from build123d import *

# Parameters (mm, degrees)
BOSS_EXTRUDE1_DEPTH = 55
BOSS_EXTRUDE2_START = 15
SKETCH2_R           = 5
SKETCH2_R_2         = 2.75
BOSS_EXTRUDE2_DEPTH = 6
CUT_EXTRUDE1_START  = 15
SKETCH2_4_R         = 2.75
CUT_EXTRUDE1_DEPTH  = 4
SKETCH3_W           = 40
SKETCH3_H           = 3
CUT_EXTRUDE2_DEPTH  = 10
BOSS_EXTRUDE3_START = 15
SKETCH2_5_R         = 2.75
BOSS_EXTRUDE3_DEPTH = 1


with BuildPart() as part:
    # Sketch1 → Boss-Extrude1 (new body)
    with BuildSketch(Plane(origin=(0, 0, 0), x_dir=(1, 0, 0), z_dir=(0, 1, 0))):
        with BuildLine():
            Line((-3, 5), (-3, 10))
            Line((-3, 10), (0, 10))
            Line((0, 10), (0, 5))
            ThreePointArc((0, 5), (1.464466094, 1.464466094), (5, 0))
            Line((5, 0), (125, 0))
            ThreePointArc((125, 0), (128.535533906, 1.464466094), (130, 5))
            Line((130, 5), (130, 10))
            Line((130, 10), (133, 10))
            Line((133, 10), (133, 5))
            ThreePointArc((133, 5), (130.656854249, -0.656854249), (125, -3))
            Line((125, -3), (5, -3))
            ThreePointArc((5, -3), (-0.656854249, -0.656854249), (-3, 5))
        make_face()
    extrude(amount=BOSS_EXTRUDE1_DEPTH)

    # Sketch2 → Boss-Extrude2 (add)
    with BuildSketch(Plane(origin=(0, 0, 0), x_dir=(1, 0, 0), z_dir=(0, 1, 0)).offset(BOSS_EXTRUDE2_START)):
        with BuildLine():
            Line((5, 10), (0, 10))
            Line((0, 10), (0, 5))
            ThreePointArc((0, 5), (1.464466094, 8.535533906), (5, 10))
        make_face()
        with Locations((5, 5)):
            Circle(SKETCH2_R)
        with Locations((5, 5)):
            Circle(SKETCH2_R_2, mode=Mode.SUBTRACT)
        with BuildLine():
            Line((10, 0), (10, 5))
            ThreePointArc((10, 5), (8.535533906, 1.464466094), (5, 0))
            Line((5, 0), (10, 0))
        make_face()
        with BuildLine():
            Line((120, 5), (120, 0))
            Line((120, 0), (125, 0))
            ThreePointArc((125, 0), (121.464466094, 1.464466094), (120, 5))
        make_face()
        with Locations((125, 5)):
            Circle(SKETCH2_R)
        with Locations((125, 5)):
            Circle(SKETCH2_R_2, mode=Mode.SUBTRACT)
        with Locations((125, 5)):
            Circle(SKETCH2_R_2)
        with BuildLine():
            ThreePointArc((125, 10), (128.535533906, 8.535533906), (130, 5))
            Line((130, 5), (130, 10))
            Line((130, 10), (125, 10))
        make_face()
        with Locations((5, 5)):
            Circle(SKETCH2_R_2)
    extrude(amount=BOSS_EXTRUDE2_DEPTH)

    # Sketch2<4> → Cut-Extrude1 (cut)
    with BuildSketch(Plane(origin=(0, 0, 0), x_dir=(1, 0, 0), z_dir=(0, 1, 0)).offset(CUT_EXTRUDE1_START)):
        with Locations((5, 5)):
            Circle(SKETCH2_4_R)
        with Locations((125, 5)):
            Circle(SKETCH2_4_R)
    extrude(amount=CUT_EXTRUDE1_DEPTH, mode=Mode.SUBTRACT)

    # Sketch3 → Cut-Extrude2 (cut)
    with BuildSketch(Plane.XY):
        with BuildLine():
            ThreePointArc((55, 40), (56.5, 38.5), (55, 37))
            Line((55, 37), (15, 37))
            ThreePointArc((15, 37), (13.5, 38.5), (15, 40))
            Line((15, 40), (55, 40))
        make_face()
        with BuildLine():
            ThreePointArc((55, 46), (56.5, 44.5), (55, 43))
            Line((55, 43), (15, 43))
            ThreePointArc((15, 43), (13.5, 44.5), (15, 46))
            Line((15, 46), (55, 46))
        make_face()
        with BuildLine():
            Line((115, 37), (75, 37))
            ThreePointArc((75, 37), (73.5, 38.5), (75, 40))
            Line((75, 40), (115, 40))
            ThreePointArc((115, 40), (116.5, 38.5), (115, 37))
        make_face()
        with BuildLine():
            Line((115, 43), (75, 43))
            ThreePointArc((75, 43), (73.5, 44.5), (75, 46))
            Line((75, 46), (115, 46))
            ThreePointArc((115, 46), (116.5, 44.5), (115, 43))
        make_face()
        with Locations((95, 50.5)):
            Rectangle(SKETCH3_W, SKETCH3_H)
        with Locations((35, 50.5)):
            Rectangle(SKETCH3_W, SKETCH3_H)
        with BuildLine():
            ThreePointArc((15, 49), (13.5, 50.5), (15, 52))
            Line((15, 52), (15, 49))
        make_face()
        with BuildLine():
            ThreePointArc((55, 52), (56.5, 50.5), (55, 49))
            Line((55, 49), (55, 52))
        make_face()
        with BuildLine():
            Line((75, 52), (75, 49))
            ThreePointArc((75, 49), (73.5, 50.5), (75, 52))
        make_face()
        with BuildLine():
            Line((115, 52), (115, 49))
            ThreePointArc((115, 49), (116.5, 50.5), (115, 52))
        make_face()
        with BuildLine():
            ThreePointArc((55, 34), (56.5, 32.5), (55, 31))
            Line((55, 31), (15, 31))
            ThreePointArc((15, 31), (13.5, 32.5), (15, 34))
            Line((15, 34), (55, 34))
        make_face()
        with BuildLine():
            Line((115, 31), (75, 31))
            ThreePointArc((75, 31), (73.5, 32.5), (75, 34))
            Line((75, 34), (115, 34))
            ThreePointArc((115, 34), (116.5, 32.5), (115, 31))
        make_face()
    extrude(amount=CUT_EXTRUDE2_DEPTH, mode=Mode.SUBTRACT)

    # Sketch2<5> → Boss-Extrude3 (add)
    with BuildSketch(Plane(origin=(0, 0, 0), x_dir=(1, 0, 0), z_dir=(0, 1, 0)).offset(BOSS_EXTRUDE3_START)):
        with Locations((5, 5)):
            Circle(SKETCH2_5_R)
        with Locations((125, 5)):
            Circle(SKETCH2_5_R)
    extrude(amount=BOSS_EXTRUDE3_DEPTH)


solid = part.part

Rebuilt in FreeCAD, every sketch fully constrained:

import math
import FreeCAD as App
import Part
import Sketcher

V = App.Vector
Q = App.Units.Quantity

doc = App.newDocument("Part")
body = doc.addObject("PartDesign::Body", "Body")

# Sketch on XZ plane
sketch1 = doc.addObject("Sketcher::SketchObject", "Sketch")
body.addObject(sketch1)
sketch1.AttachmentSupport = (doc.XZ_Plane, [""])
sketch1.MapMode = "FlatFace"
sketch1.addGeometry(Part.LineSegment(V(-3, -10, 0), V(-3, -5, 0)), False)
sketch1.addGeometry(Part.ArcOfCircle(Part.Circle(V(5, -5, 0), V(0, 0, 1), 8), math.radians(90), math.radians(180)), False)
sketch1.addGeometry(Part.LineSegment(V(5, 3, 0), V(125, 3, 0)), False)
sketch1.addGeometry(Part.ArcOfCircle(Part.Circle(V(125, -5, 0), V(0, 0, 1), 8), math.radians(0), math.radians(90)), False)
sketch1.addGeometry(Part.LineSegment(V(133, -5, 0), V(133, -10, 0)), False)
sketch1.addGeometry(Part.LineSegment(V(133, -10, 0), V(130, -10, 0)), False)
sketch1.addGeometry(Part.LineSegment(V(130, -10, 0), V(130, -5, 0)), False)
sketch1.addGeometry(Part.ArcOfCircle(Part.Circle(V(125, -5, 0), V(0, 0, 1), 5), math.radians(0), math.radians(90)), False)
sketch1.addGeometry(Part.LineSegment(V(125, 0, 0), V(5, 0, 0)), False)
sketch1.addGeometry(Part.ArcOfCircle(Part.Circle(V(5, -5, 0), V(0, 0, 1), 5), math.radians(90), math.radians(180)), False)
sketch1.addGeometry(Part.LineSegment(V(0, -5, 0), V(0, -10, 0)), False)
sketch1.addGeometry(Part.LineSegment(V(0, -10, 0), V(-3, -10, 0)), False)
sketch1.addConstraint(Sketcher.Constraint("Tangent", 0, 2, 1, 2))
sketch1.addConstraint(Sketcher.Constraint("Tangent", 1, 1, 2, 1))
sketch1.addConstraint(Sketcher.Constraint("Tangent", 2, 2, 3, 2))
sketch1.addConstraint(Sketcher.Constraint("Tangent", 3, 1, 4, 1))
sketch1.addConstraint(Sketcher.Constraint("Coincident", 4, 2, 5, 1))
sketch1.addConstraint(Sketcher.Constraint("Coincident", 5, 2, 6, 1))
sketch1.addConstraint(Sketcher.Constraint("Tangent", 6, 2, 7, 1))
sketch1.addConstraint(Sketcher.Constraint("Tangent", 7, 2, 8, 1))
sketch1.addConstraint(Sketcher.Constraint("Tangent", 8, 2, 9, 1))
sketch1.addConstraint(Sketcher.Constraint("Tangent", 9, 2, 10, 1))
sketch1.addConstraint(Sketcher.Constraint("Coincident", 10, 2, 11, 1))
sketch1.addConstraint(Sketcher.Constraint("Coincident", 11, 2, 0, 1))
sketch1.addConstraint(Sketcher.Constraint("Vertical", 0))
sketch1.addConstraint(Sketcher.Constraint("Horizontal", 2))
sketch1.addConstraint(Sketcher.Constraint("Vertical", 4))
sketch1.addConstraint(Sketcher.Constraint("Horizontal", 5))
sketch1.addConstraint(Sketcher.Constraint("Vertical", 6))
sketch1.addConstraint(Sketcher.Constraint("Horizontal", 8))
sketch1.addConstraint(Sketcher.Constraint("Vertical", 10))
sketch1.addConstraint(Sketcher.Constraint("Horizontal", 11))
sketch1.addConstraint(Sketcher.Constraint("Coincident", 7, 3, 3, 3))
sketch1.addConstraint(Sketcher.Constraint("Coincident", 9, 3, 1, 3))
sketch1.addConstraint(Sketcher.Constraint("Equal", 1, 3))
sketch1.addConstraint(Sketcher.Constraint("PointOnObject", 7, 2, -1))
sketch1.addConstraint(Sketcher.Constraint("PointOnObject", 9, 2, -2))
sketch1.addConstraint(Sketcher.Constraint("Horizontal", 5, 2, 10, 2))
sketch1.addConstraint(Sketcher.Constraint("Radius", 1, Q("8 mm")))
sketch1.addConstraint(Sketcher.Constraint("Radius", 7, Q("5 mm")))
sketch1.addConstraint(Sketcher.Constraint("DistanceX", 2, 1, 2, 2, Q("120 mm")))
sketch1.addConstraint(Sketcher.Constraint("DistanceY", 0, 1, 0, 2, Q("5 mm")))
pad1 = doc.addObject("PartDesign::Pad", "Pad")
body.addObject(pad1)
pad1.Profile = sketch1
pad1.Length = 55
pad1.Reversed = True

# Sketch on XZ plane
sketch2 = doc.addObject("Sketcher::SketchObject", "Sketch001")
body.addObject(sketch2)
sketch2.AttachmentSupport = (doc.XZ_Plane, [""])
sketch2.MapMode = "FlatFace"
sketch2.AttachmentOffset = App.Placement(V(0, 0, -15), App.Rotation())
sketch2.addGeometry(Part.LineSegment(V(5, -10, 0), V(0, -10, 0)), False)
sketch2.addGeometry(Part.LineSegment(V(0, -10, 0), V(0, -5, 0)), False)
sketch2.addGeometry(Part.ArcOfCircle(Part.Circle(V(5, -5, 0), V(0, 0, 1), 5), math.radians(90), math.radians(180)), False)
sketch2.addGeometry(Part.LineSegment(V(5, 0, 0), V(10, 0, 0)), False)
sketch2.addGeometry(Part.LineSegment(V(10, 0, 0), V(10, -5, 0)), False)
sketch2.addGeometry(Part.ArcOfCircle(Part.Circle(V(5, -5, 0), V(0, 0, 1), 5), math.radians(-90), math.radians(0)), False)
sketch2.addGeometry(Part.LineSegment(V(120, -5, 0), V(120, 0, 0)), False)
sketch2.addGeometry(Part.LineSegment(V(120, 0, 0), V(125, 0, 0)), False)
sketch2.addGeometry(Part.ArcOfCircle(Part.Circle(V(125, -5, 0), V(0, 0, 1), 5), math.radians(0), math.radians(90)), False)
sketch2.addGeometry(Part.LineSegment(V(130, -5, 0), V(130, -10, 0)), False)
sketch2.addGeometry(Part.LineSegment(V(130, -10, 0), V(125, -10, 0)), False)
sketch2.addGeometry(Part.ArcOfCircle(Part.Circle(V(125, -5, 0), V(0, 0, 1), 5), math.radians(180), math.radians(270)), False)
sketch2.addConstraint(Sketcher.Constraint("Coincident", 0, 2, 1, 1))
sketch2.addConstraint(Sketcher.Constraint("Tangent", 1, 2, 2, 2))
sketch2.addConstraint(Sketcher.Constraint("Tangent", 2, 1, 3, 1))
sketch2.addConstraint(Sketcher.Constraint("Coincident", 3, 2, 4, 1))
sketch2.addConstraint(Sketcher.Constraint("Tangent", 4, 2, 5, 2))
sketch2.addConstraint(Sketcher.Constraint("Tangent", 5, 1, 0, 1))
sketch2.addConstraint(Sketcher.Constraint("Coincident", 6, 2, 7, 1))
sketch2.addConstraint(Sketcher.Constraint("Tangent", 7, 2, 8, 2))
sketch2.addConstraint(Sketcher.Constraint("Tangent", 8, 1, 9, 1))
sketch2.addConstraint(Sketcher.Constraint("Coincident", 9, 2, 10, 1))
sketch2.addConstraint(Sketcher.Constraint("Tangent", 10, 2, 11, 2))
sketch2.addConstraint(Sketcher.Constraint("Tangent", 11, 1, 6, 1))
sketch2.addConstraint(Sketcher.Constraint("Horizontal", 0))
sketch2.addConstraint(Sketcher.Constraint("Vertical", 1))
sketch2.addConstraint(Sketcher.Constraint("Horizontal", 3))
sketch2.addConstraint(Sketcher.Constraint("Vertical", 4))
sketch2.addConstraint(Sketcher.Constraint("Vertical", 6))
sketch2.addConstraint(Sketcher.Constraint("Horizontal", 7))
sketch2.addConstraint(Sketcher.Constraint("Vertical", 9))
sketch2.addConstraint(Sketcher.Constraint("Horizontal", 10))
sketch2.addConstraint(Sketcher.Constraint("Coincident", 5, 3, 2, 3))
sketch2.addConstraint(Sketcher.Constraint("Coincident", 11, 3, 8, 3))
sketch2.addConstraint(Sketcher.Constraint("Equal", 2, 5))
sketch2.addConstraint(Sketcher.Constraint("Equal", 5, 8))
sketch2.addConstraint(Sketcher.Constraint("Equal", 8, 11))
sketch2.addConstraint(Sketcher.Constraint("PointOnObject", 0, 2, -2))
sketch2.addConstraint(Sketcher.Constraint("PointOnObject", 2, 1, -1))
sketch2.addConstraint(Sketcher.Constraint("PointOnObject", 6, 2, -1))
sketch2.addConstraint(Sketcher.Constraint("Radius", 2, Q("5 mm")))
sketch2.addConstraint(Sketcher.Constraint("DistanceX", -1, 1, 8, 3, Q("125 mm")))
pad2 = doc.addObject("PartDesign::Pad", "Pad001")
body.addObject(pad2)
pad2.Profile = sketch2
pad2.Length = 6
pad2.Reversed = True

# Sketch on XZ plane
sketch3 = doc.addObject("Sketcher::SketchObject", "Sketch002")
body.addObject(sketch3)
sketch3.AttachmentSupport = (doc.XZ_Plane, [""])
sketch3.MapMode = "FlatFace"
sketch3.AttachmentOffset = App.Placement(V(0, 0, -15), App.Rotation())
sketch3.addGeometry(Part.Circle(V(5, -5, 0), V(0, 0, 1), 2.8), False)
sketch3.addGeometry(Part.Circle(V(125, -5, 0), V(0, 0, 1), 2.8), False)
sketch3.addConstraint(Sketcher.Constraint("Equal", 0, 1))
sketch3.addConstraint(Sketcher.Constraint("Horizontal", 0, 3, 1, 3))
sketch3.addConstraint(Sketcher.Constraint("Diameter", 0, Q("5.5 mm")))
sketch3.addConstraint(Sketcher.Constraint("DistanceX", -1, 1, 0, 3, Q("5 mm")))
sketch3.addConstraint(Sketcher.Constraint("DistanceY", 0, 3, -1, 1, Q("5 mm")))
sketch3.addConstraint(Sketcher.Constraint("DistanceX", -1, 1, 1, 3, Q("125 mm")))
pocket1 = doc.addObject("PartDesign::Pocket", "Pocket")
body.addObject(pocket1)
pocket1.Profile = sketch3
pocket1.Length = 4

# Sketch on XY plane
sketch4 = doc.addObject("Sketcher::SketchObject", "Sketch003")
body.addObject(sketch4)
sketch4.AttachmentSupport = (doc.XY_Plane, [""])
sketch4.MapMode = "FlatFace"
sketch4.addGeometry(Part.ArcOfCircle(Part.Circle(V(55, 38.5, 0), V(0, 0, 1), 1.5), math.radians(-90), math.radians(90)), False)
sketch4.addGeometry(Part.LineSegment(V(55, 40, 0), V(15, 40, 0)), False)
sketch4.addGeometry(Part.ArcOfCircle(Part.Circle(V(15, 38.5, 0), V(0, 0, 1), 1.5), math.radians(90), math.radians(270)), False)
sketch4.addGeometry(Part.LineSegment(V(15, 37, 0), V(55, 37, 0)), False)
sketch4.addGeometry(Part.ArcOfCircle(Part.Circle(V(55, 44.5, 0), V(0, 0, 1), 1.5), math.radians(-90), math.radians(90)), False)
sketch4.addGeometry(Part.LineSegment(V(55, 46, 0), V(15, 46, 0)), False)
sketch4.addGeometry(Part.ArcOfCircle(Part.Circle(V(15, 44.5, 0), V(0, 0, 1), 1.5), math.radians(90), math.radians(270)), False)
sketch4.addGeometry(Part.LineSegment(V(15, 43, 0), V(55, 43, 0)), False)
sketch4.addGeometry(Part.LineSegment(V(75, 37, 0), V(115, 37, 0)), False)
sketch4.addGeometry(Part.ArcOfCircle(Part.Circle(V(115, 38.5, 0), V(0, 0, 1), 1.5), math.radians(-90), math.radians(90)), False)
sketch4.addGeometry(Part.LineSegment(V(115, 40, 0), V(75, 40, 0)), False)
sketch4.addGeometry(Part.ArcOfCircle(Part.Circle(V(75, 38.5, 0), V(0, 0, 1), 1.5), math.radians(90), math.radians(270)), False)
sketch4.addGeometry(Part.LineSegment(V(75, 43, 0), V(115, 43, 0)), False)
sketch4.addGeometry(Part.ArcOfCircle(Part.Circle(V(115, 44.5, 0), V(0, 0, 1), 1.5), math.radians(-90), math.radians(90)), False)
sketch4.addGeometry(Part.LineSegment(V(115, 46, 0), V(75, 46, 0)), False)
sketch4.addGeometry(Part.ArcOfCircle(Part.Circle(V(75, 44.5, 0), V(0, 0, 1), 1.5), math.radians(90), math.radians(270)), False)
sketch4.addGeometry(Part.LineSegment(V(75, 49, 0), V(115, 49, 0)), False)
sketch4.addGeometry(Part.ArcOfCircle(Part.Circle(V(115, 50.5, 0), V(0, 0, 1), 1.5), math.radians(-90), math.radians(90)), False)
sketch4.addGeometry(Part.LineSegment(V(115, 52, 0), V(75, 52, 0)), False)
sketch4.addGeometry(Part.ArcOfCircle(Part.Circle(V(75, 50.5, 0), V(0, 0, 1), 1.5), math.radians(90), math.radians(270)), False)
sketch4.addGeometry(Part.LineSegment(V(15, 49, 0), V(55, 49, 0)), False)
sketch4.addGeometry(Part.ArcOfCircle(Part.Circle(V(55, 50.5, 0), V(0, 0, 1), 1.5), math.radians(-90), math.radians(90)), False)
sketch4.addGeometry(Part.LineSegment(V(55, 52, 0), V(15, 52, 0)), False)
sketch4.addGeometry(Part.ArcOfCircle(Part.Circle(V(15, 50.5, 0), V(0, 0, 1), 1.5), math.radians(90), math.radians(270)), False)
sketch4.addGeometry(Part.ArcOfCircle(Part.Circle(V(55, 32.5, 0), V(0, 0, 1), 1.5), math.radians(-90), math.radians(90)), False)
sketch4.addGeometry(Part.LineSegment(V(55, 34, 0), V(15, 34, 0)), False)
sketch4.addGeometry(Part.ArcOfCircle(Part.Circle(V(15, 32.5, 0), V(0, 0, 1), 1.5), math.radians(90), math.radians(270)), False)
sketch4.addGeometry(Part.LineSegment(V(15, 31, 0), V(55, 31, 0)), False)
sketch4.addGeometry(Part.LineSegment(V(75, 31, 0), V(115, 31, 0)), False)
sketch4.addGeometry(Part.ArcOfCircle(Part.Circle(V(115, 32.5, 0), V(0, 0, 1), 1.5), math.radians(-90), math.radians(90)), False)
sketch4.addGeometry(Part.LineSegment(V(115, 34, 0), V(75, 34, 0)), False)
sketch4.addGeometry(Part.ArcOfCircle(Part.Circle(V(75, 32.5, 0), V(0, 0, 1), 1.5), math.radians(90), math.radians(270)), False)
sketch4.addConstraint(Sketcher.Constraint("Tangent", 0, 2, 1, 1))
sketch4.addConstraint(Sketcher.Constraint("Tangent", 1, 2, 2, 1))
sketch4.addConstraint(Sketcher.Constraint("Tangent", 2, 2, 3, 1))
sketch4.addConstraint(Sketcher.Constraint("Tangent", 3, 2, 0, 1))
sketch4.addConstraint(Sketcher.Constraint("Tangent", 4, 2, 5, 1))
sketch4.addConstraint(Sketcher.Constraint("Tangent", 5, 2, 6, 1))
sketch4.addConstraint(Sketcher.Constraint("Tangent", 6, 2, 7, 1))
sketch4.addConstraint(Sketcher.Constraint("Tangent", 7, 2, 4, 1))
sketch4.addConstraint(Sketcher.Constraint("Tangent", 8, 2, 9, 1))
sketch4.addConstraint(Sketcher.Constraint("Tangent", 9, 2, 10, 1))
sketch4.addConstraint(Sketcher.Constraint("Tangent", 10, 2, 11, 1))
sketch4.addConstraint(Sketcher.Constraint("Tangent", 11, 2, 8, 1))
sketch4.addConstraint(Sketcher.Constraint("Tangent", 12, 2, 13, 1))
sketch4.addConstraint(Sketcher.Constraint("Tangent", 13, 2, 14, 1))
sketch4.addConstraint(Sketcher.Constraint("Tangent", 14, 2, 15, 1))
sketch4.addConstraint(Sketcher.Constraint("Tangent", 15, 2, 12, 1))
sketch4.addConstraint(Sketcher.Constraint("Tangent", 16, 2, 17, 1))
sketch4.addConstraint(Sketcher.Constraint("Tangent", 17, 2, 18, 1))
sketch4.addConstraint(Sketcher.Constraint("Tangent", 18, 2, 19, 1))
sketch4.addConstraint(Sketcher.Constraint("Tangent", 19, 2, 16, 1))
sketch4.addConstraint(Sketcher.Constraint("Tangent", 20, 2, 21, 1))
sketch4.addConstraint(Sketcher.Constraint("Tangent", 21, 2, 22, 1))
sketch4.addConstraint(Sketcher.Constraint("Tangent", 22, 2, 23, 1))
sketch4.addConstraint(Sketcher.Constraint("Tangent", 23, 2, 20, 1))
sketch4.addConstraint(Sketcher.Constraint("Tangent", 24, 2, 25, 1))
sketch4.addConstraint(Sketcher.Constraint("Tangent", 25, 2, 26, 1))
sketch4.addConstraint(Sketcher.Constraint("Tangent", 26, 2, 27, 1))
sketch4.addConstraint(Sketcher.Constraint("Tangent", 27, 2, 24, 1))
sketch4.addConstraint(Sketcher.Constraint("Tangent", 28, 2, 29, 1))
sketch4.addConstraint(Sketcher.Constraint("Tangent", 29, 2, 30, 1))
sketch4.addConstraint(Sketcher.Constraint("Tangent", 30, 2, 31, 1))
sketch4.addConstraint(Sketcher.Constraint("Tangent", 31, 2, 28, 1))
sketch4.addConstraint(Sketcher.Constraint("Horizontal", 1))
sketch4.addConstraint(Sketcher.Constraint("Horizontal", 3))
sketch4.addConstraint(Sketcher.Constraint("Horizontal", 5))
sketch4.addConstraint(Sketcher.Constraint("Horizontal", 7))
sketch4.addConstraint(Sketcher.Constraint("Horizontal", 8))
sketch4.addConstraint(Sketcher.Constraint("Horizontal", 10))
sketch4.addConstraint(Sketcher.Constraint("Horizontal", 12))
sketch4.addConstraint(Sketcher.Constraint("Horizontal", 14))
sketch4.addConstraint(Sketcher.Constraint("Horizontal", 16))
sketch4.addConstraint(Sketcher.Constraint("Horizontal", 18))
sketch4.addConstraint(Sketcher.Constraint("Horizontal", 20))
sketch4.addConstraint(Sketcher.Constraint("Horizontal", 22))
sketch4.addConstraint(Sketcher.Constraint("Horizontal", 25))
sketch4.addConstraint(Sketcher.Constraint("Horizontal", 27))
sketch4.addConstraint(Sketcher.Constraint("Horizontal", 28))
sketch4.addConstraint(Sketcher.Constraint("Horizontal", 30))
sketch4.addConstraint(Sketcher.Constraint("Equal", 2, 4))
sketch4.addConstraint(Sketcher.Constraint("Equal", 6, 9))
sketch4.addConstraint(Sketcher.Constraint("Equal", 11, 13))
sketch4.addConstraint(Sketcher.Constraint("Equal", 15, 17))
sketch4.addConstraint(Sketcher.Constraint("Equal", 19, 21))
sketch4.addConstraint(Sketcher.Constraint("Equal", 23, 24))
sketch4.addConstraint(Sketcher.Constraint("Equal", 26, 29))
sketch4.addConstraint(Sketcher.Constraint("Horizontal", 2, 3, 9, 3))
sketch4.addConstraint(Sketcher.Constraint("Horizontal", 6, 3, 13, 3))
sketch4.addConstraint(Sketcher.Constraint("Horizontal", 19, 3, 21, 3))
sketch4.addConstraint(Sketcher.Constraint("Horizontal", 26, 3, 29, 3))
sketch4.addConstraint(Sketcher.Constraint("Vertical", 0, 3, 4, 3))
sketch4.addConstraint(Sketcher.Constraint("Vertical", 2, 3, 6, 3))
sketch4.addConstraint(Sketcher.Constraint("Vertical", 9, 3, 13, 3))
sketch4.addConstraint(Sketcher.Constraint("Vertical", 11, 3, 15, 3))
sketch4.addConstraint(Sketcher.Constraint("Vertical", 13, 3, 17, 3))
sketch4.addConstraint(Sketcher.Constraint("Vertical", 15, 3, 19, 3))
sketch4.addConstraint(Sketcher.Constraint("Vertical", 4, 3, 21, 3))
sketch4.addConstraint(Sketcher.Constraint("Vertical", 6, 3, 23, 3))
sketch4.addConstraint(Sketcher.Constraint("Vertical", 21, 3, 24, 3))
sketch4.addConstraint(Sketcher.Constraint("Vertical", 23, 3, 26, 3))
sketch4.addConstraint(Sketcher.Constraint("Vertical", 17, 3, 29, 3))
sketch4.addConstraint(Sketcher.Constraint("Vertical", 19, 3, 31, 3))
sketch4.addConstraint(Sketcher.Constraint("Equal", 7, 8))
sketch4.addConstraint(Sketcher.Constraint("Radius", 0, Q("1.5 mm")))
sketch4.addConstraint(Sketcher.Constraint("DistanceX", 1, 2, 1, 1, Q("40 mm")))
sketch4.addConstraint(Sketcher.Constraint("DistanceX", -1, 1, 0, 3, Q("55 mm")))
sketch4.addConstraint(Sketcher.Constraint("DistanceX", -1, 1, 9, 3, Q("115 mm")))
sketch4.addConstraint(Sketcher.Constraint("DistanceY", -1, 1, 0, 2, Q("40 mm")))
sketch4.addConstraint(Sketcher.Constraint("DistanceY", -1, 1, 4, 2, Q("46 mm")))
sketch4.addConstraint(Sketcher.Constraint("DistanceY", -1, 1, 16, 2, Q("49 mm")))
sketch4.addConstraint(Sketcher.Constraint("DistanceY", -1, 1, 24, 2, Q("34 mm")))
pocket2 = doc.addObject("PartDesign::Pocket", "Pocket001")
body.addObject(pocket2)
pocket2.Profile = sketch4
pocket2.Length = 10
pocket2.Reversed = True

# Sketch on XZ plane
sketch5 = doc.addObject("Sketcher::SketchObject", "Sketch004")
body.addObject(sketch5)
sketch5.AttachmentSupport = (doc.XZ_Plane, [""])
sketch5.MapMode = "FlatFace"
sketch5.AttachmentOffset = App.Placement(V(0, 0, -15), App.Rotation())
sketch5.addGeometry(Part.Circle(V(5, -5, 0), V(0, 0, 1), 2.8), False)
sketch5.addGeometry(Part.Circle(V(125, -5, 0), V(0, 0, 1), 2.8), False)
sketch5.addConstraint(Sketcher.Constraint("Equal", 0, 1))
sketch5.addConstraint(Sketcher.Constraint("Horizontal", 0, 3, 1, 3))
sketch5.addConstraint(Sketcher.Constraint("Diameter", 0, Q("5.5 mm")))
sketch5.addConstraint(Sketcher.Constraint("DistanceX", -1, 1, 0, 3, Q("5 mm")))
sketch5.addConstraint(Sketcher.Constraint("DistanceY", 0, 3, -1, 1, Q("5 mm")))
sketch5.addConstraint(Sketcher.Constraint("DistanceX", -1, 1, 1, 3, Q("125 mm")))
pad3 = doc.addObject("PartDesign::Pad", "Pad002")
body.addObject(pad3)
pad3.Profile = sketch5
pad3.Length = 1
pad3.Reversed = True

doc.recompute()
